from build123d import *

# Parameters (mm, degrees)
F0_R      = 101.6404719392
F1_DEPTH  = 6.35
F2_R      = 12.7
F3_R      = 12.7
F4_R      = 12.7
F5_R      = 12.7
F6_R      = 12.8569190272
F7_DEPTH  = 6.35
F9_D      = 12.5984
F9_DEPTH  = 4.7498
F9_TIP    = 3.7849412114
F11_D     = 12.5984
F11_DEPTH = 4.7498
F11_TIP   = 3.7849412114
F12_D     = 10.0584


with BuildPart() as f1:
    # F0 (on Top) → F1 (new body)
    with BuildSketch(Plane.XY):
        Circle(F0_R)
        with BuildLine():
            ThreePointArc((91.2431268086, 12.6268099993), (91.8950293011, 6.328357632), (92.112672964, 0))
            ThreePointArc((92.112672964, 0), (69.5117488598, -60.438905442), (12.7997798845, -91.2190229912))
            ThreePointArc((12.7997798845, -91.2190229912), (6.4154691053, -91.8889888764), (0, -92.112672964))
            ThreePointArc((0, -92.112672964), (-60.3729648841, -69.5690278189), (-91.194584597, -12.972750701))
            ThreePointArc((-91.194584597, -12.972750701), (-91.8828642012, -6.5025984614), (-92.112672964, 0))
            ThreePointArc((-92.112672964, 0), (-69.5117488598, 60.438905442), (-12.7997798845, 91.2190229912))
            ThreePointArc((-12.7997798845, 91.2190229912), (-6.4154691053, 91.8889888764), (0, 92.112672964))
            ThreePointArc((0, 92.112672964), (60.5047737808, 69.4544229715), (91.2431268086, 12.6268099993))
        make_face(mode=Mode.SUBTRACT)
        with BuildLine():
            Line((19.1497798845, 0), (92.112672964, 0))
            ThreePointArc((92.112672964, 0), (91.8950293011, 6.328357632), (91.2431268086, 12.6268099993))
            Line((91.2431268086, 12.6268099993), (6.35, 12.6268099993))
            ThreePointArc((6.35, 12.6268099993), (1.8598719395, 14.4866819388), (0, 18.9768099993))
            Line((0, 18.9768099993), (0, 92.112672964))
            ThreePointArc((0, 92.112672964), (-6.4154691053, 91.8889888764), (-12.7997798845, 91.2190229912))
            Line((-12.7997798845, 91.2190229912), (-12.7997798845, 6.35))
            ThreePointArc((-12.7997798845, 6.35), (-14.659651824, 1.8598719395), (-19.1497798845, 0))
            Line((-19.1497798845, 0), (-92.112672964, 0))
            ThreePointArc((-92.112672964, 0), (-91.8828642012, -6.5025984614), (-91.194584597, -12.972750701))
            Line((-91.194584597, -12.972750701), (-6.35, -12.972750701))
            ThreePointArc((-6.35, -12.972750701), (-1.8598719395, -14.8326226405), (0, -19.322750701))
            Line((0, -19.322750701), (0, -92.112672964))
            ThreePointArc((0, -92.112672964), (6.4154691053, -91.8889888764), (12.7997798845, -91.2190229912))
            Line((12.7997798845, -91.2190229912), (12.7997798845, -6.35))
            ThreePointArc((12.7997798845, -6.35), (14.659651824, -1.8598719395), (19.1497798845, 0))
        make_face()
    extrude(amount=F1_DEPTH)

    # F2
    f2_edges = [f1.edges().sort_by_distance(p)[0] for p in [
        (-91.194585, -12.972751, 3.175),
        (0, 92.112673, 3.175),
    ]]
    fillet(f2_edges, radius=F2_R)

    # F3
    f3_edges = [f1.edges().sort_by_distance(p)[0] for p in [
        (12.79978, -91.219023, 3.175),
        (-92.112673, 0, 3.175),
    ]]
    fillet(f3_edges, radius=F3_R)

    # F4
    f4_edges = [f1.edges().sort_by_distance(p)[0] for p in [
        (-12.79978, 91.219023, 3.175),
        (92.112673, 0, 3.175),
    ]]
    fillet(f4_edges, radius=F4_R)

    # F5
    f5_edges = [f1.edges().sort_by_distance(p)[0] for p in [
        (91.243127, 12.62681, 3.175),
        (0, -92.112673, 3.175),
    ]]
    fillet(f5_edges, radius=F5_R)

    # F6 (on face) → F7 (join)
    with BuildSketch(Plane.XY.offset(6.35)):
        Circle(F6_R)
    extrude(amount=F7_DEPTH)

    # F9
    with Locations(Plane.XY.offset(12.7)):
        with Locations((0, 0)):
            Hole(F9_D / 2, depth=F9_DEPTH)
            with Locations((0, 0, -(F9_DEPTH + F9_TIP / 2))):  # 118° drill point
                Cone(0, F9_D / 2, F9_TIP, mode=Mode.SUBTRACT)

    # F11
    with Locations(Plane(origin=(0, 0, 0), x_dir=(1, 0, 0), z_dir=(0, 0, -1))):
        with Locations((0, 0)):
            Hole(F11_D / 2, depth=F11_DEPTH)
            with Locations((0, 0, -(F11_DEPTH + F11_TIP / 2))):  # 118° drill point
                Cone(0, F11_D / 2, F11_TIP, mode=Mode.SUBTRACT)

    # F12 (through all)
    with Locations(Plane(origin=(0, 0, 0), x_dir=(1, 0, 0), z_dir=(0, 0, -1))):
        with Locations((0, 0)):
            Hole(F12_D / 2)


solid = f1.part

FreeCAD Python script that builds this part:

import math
import FreeCAD as App
import Part
import Sketcher
Q = App.Units.Quantity


def edges_at(feature, points):
    """Names of the edges that pass closest to the given points."""
    edges = feature.Shape.Edges
    near = lambda p: min(range(len(edges)), key=lambda i: edges[i].distToShape(Part.Vertex(*p))[0])
    return sorted({f"Edge{near(p) + 1}" for p in points})

doc = App.newDocument("Part")
params = doc.addObject("Spreadsheet::Sheet", "Params")
for row, (alias, value) in enumerate([
    ("sketch1_radius", "0.25 in"),
    ("pad1_length", "0.25 in"),
    ("fillet_radius", "0.5 in"),
    ("fillet2_radius", "0.5 in"),
    ("fillet3_radius", "0.5 in"),
    ("fillet4_radius", "0.5 in"),
    ("pad2_length", "0.25 in"),
    ("sketch3_diameter", "0.496 in"),
    ("hole_diameter", "0.496 in"),
    ("hole_depth", "0.187 in"),
    ("sketch4_diameter", "0.496 in"),
    ("hole2_diameter", "0.496 in"),
    ("hole2_depth", "0.187 in"),
    ("sketch5_diameter", "0.396 in"),
    ("hole3_diameter", "0.396 in"),
], start=1):
    params.set(f"A{row}", alias)
    params.set(f"B{row}", "=" + value)
    params.setAlias(f"B{row}", alias)

body = doc.addObject("PartDesign::Body", "Body")

# Sketch on XY plane
sketch1 = doc.addObject("Sketcher::SketchObject", "Sketch")
body.addObject(sketch1)
sketch1.AttachmentSupport = (doc.XY_Plane, [""])
sketch1.MapMode = "FlatFace"
sketch1.addGeometry(Part.Circle(App.Vector(0, 0, 0), App.Vector(0, 0, 1), 102), False)
sketch1.addGeometry(Part.ArcOfCircle(Part.Circle(App.Vector(0, 0, 0), App.Vector(0, 0, 1), 92), math.radians(8), math.radians(90)), False)
sketch1.addGeometry(Part.LineSegment(App.Vector(91, 13, 0), App.Vector(6, 13, 0)), False)
sketch1.addGeometry(Part.ArcOfCircle(Part.Circle(App.Vector(6, 19, 0), App.Vector(0, 0, 1), 6), math.radians(180), math.radians(270)), False)
sketch1.addGeometry(Part.LineSegment(App.Vector(0, 19, 0), App.Vector(0, 92, 0)), False)
sketch1.addGeometry(Part.ArcOfCircle(Part.Circle(App.Vector(0, 0, 0), App.Vector(0, 0, 1), 92), math.radians(98), math.radians(180)), False)
sketch1.addGeometry(Part.LineSegment(App.Vector(-13, 91, 0), App.Vector(-13, 6, 0)), False)
sketch1.addGeometry(Part.ArcOfCircle(Part.Circle(App.Vector(-19, 6, 0), App.Vector(0, 0, 1), 6), math.radians(-90), math.radians(0)), False)
sketch1.addGeometry(Part.LineSegment(App.Vector(-19, 0, 0), App.Vector(-92, 0, 0)), False)
sketch1.addGeometry(Part.ArcOfCircle(Part.Circle(App.Vector(0, 0, 0), App.Vector(0, 0, 1), 92), math.radians(-172), math.radians(-90)), False)
sketch1.addGeometry(Part.LineSegment(App.Vector(-91, -13, 0), App.Vector(-6, -13, 0)), False)
sketch1.addGeometry(Part.ArcOfCircle(Part.Circle(App.Vector(-6, -19, 0), App.Vector(0, 0, 1), 6), math.radians(0), math.radians(90)), False)
sketch1.addGeometry(Part.LineSegment(App.Vector(0, -19, 0), App.Vector(0, -92, 0)), False)
sketch1.addGeometry(Part.ArcOfCircle(Part.Circle(App.Vector(0, 0, 0), App.Vector(0, 0, 1), 92), math.radians(-82), math.radians(0)), False)
sketch1.addGeometry(Part.LineSegment(App.Vector(13, -91, 0), App.Vector(13, -6, 0)), False)
sketch1.addGeometry(Part.ArcOfCircle(Part.Circle(App.Vector(19, -6, 0), App.Vector(0, 0, 1), 6), math.radians(90), math.radians(180)), False)
sketch1.addGeometry(Part.LineSegment(App.Vector(19, 0, 0), App.Vector(92, 0, 0)), False)
sketch1.addConstraint(Sketcher.Constraint("Coincident", 1, 1, 2, 1))
sketch1.addConstraint(Sketcher.Constraint("Tangent", 2, 2, 3, 2))
sketch1.addConstraint(Sketcher.Constraint("Tangent", 3, 1, 4, 1))
sketch1.addConstraint(Sketcher.Constraint("Coincident", 4, 2, 1, 2))
sketch1.addConstraint(Sketcher.Constraint("Coincident", 5, 1, 6, 1))
sketch1.addConstraint(Sketcher.Constraint("Tangent", 6, 2, 7, 2))
sketch1.addConstraint(Sketcher.Constraint("Tangent", 7, 1, 8, 1))
sketch1.addConstraint(Sketcher.Constraint("Coincident", 8, 2, 5, 2))
sketch1.addConstraint(Sketcher.Constraint("Coincident", 9, 1, 10, 1))
sketch1.addConstraint(Sketcher.Constraint("Tangent", 10, 2, 11, 2))
sketch1.addConstraint(Sketcher.Constraint("Tangent", 11, 1, 12, 1))
sketch1.addConstraint(Sketcher.Constraint("Coincident", 12, 2, 9, 2))
sketch1.addConstraint(Sketcher.Constraint("Coincident", 13, 1, 14, 1))
sketch1.addConstraint(Sketcher.Constraint("Tangent", 14, 2, 15, 2))
sketch1.addConstraint(Sketcher.Constraint("Tangent", 15, 1, 16, 1))
sketch1.addConstraint(Sketcher.Constraint("Coincident", 16, 2, 13, 2))
sketch1.addConstraint(Sketcher.Constraint("Horizontal", 2))
sketch1.addConstraint(Sketcher.Constraint("Vertical", 4))
sketch1.addConstraint(Sketcher.Constraint("Vertical", 6))
sketch1.addConstraint(Sketcher.Constraint("Horizontal", 8))
sketch1.addConstraint(Sketcher.Constraint("Horizontal", 10))
sketch1.addConstraint(Sketcher.Constraint("Vertical", 12))
sketch1.addConstraint(Sketcher.Constraint("Vertical", 14))
sketch1.addConstraint(Sketcher.Constraint("Horizontal", 16))
sketch1.addConstraint(Sketcher.Constraint("Coincident", 0, 3, -1, 1))
sketch1.addConstraint(Sketcher.Constraint("Coincident", 1, 3, -1, 1))
sketch1.addConstraint(Sketcher.Constraint("Coincident", 5, 3, -1, 1))
sketch1.addConstraint(Sketcher.Constraint("Coincident", 9, 3, -1, 1))
sketch1.addConstraint(Sketcher.Constraint("Coincident", 13, 3, -1, 1))
sketch1.addConstraint(Sketcher.Constraint("Equal", 1, 5))
sketch1.addConstraint(Sketcher.Constraint("Equal", 3, 7))
sketch1.addConstraint(Sketcher.Constraint("Equal", 5, 9))
sketch1.addConstraint(Sketcher.Constraint("Equal", 7, 11))
sketch1.addConstraint(Sketcher.Constraint("Equal", 9, 13))
sketch1.addConstraint(Sketcher.Constraint("Equal", 11, 15))
sketch1.addConstraint(Sketcher.Constraint("Symmetric", 7, 3, 15, 3, -1, 1))
sketch1.addConstraint(Sketcher.Constraint("PointOnObject", 3, 1, -2))
sketch1.addConstraint(Sketcher.Constraint("PointOnObject", 7, 1, -1))
sketch1.addConstraint(Sketcher.Constraint("PointOnObject", 11, 1, -2))
sketch1.addConstraint(Sketcher.Constraint("Radius", 3, Q("0.25 in")))
sketch1.addConstraint(Sketcher.Constraint("DistanceY", 6, 2, 6, 1, Q("3.3413001 in")))
sketch1.addConstraint(Sketcher.Constraint("Diameter", 0, 203.280944))
sketch1.addConstraint(Sketcher.Constraint("Radius", 1, 92.112673))
sketch1.addConstraint(Sketcher.Constraint("DistanceX", 2, 2, 2, 1, 84.893127))
sketch1.addConstraint(Sketcher.Constraint("DistanceX", 10, 1, 10, 2, 84.844585))
sketch1.setExpression("Constraints[39]", "Params.sketch1_radius")
pad1 = doc.addObject("PartDesign::Pad", "Pad")
body.addObject(pad1)
pad1.Profile = sketch1
pad1.setExpression("Length", "Params.pad1_length")
doc.recompute()

fillet = doc.addObject("PartDesign::Fillet", "Fillet")
body.addObject(fillet)
fillet.Base = (pad1, edges_at(pad1, [(-91.195, -12.973, 3.175), (0, 92.113, 3.175)]))
fillet.setExpression("Radius", "Params.fillet_radius")
doc.recompute()

fillet2 = doc.addObject("PartDesign::Fillet", "Fillet001")
body.addObject(fillet2)
fillet2.Base = (fillet, edges_at(fillet, [(12.8, -91.219, 3.175), (-92.113, 0, 3.175)]))
fillet2.setExpression("Radius", "Params.fillet2_radius")
doc.recompute()

fillet3 = doc.addObject("PartDesign::Fillet", "Fillet002")
body.addObject(fillet3)
fillet3.Base = (fillet2, edges_at(fillet2, [(-12.8, 91.219, 3.175), (92.113, 0, 3.175)]))
fillet3.setExpression("Radius", "Params.fillet3_radius")
doc.recompute()

fillet4 = doc.addObject("PartDesign::Fillet", "Fillet003")
body.addObject(fillet4)
fillet4.Base = (fillet3, edges_at(fillet3, [(91.243, 12.627, 3.175), (0, -92.113, 3.175)]))
fillet4.setExpression("Radius", "Params.fillet4_radius")

# Sketch on XY plane
sketch2 = doc.addObject("Sketcher::SketchObject", "Sketch001")
body.addObject(sketch2)
sketch2.AttachmentSupport = (doc.XY_Plane, [""])
sketch2.MapMode = "FlatFace"
sketch2.AttachmentOffset = App.Placement(App.Vector(0, 0, 0.25 * 25.4), App.Rotation())
sketch2.addGeometry(Part.Circle(App.Vector(0, 0, 0), App.Vector(0, 0, 1), 13), False)
sketch2.addConstraint(Sketcher.Constraint("Coincident", 0, 3, -1, 1))
sketch2.addConstraint(Sketcher.Constraint("Diameter", 0, 25.713838))
pad2 = doc.addObject("PartDesign::Pad", "Pad001")
body.addObject(pad2)
pad2.Profile = sketch2
pad2.setExpression("Length", "Params.pad2_length")

# Sketch on XY plane
sketch3 = doc.addObject("Sketcher::SketchObject", "Sketch002")
body.addObject(sketch3)
sketch3.AttachmentSupport = (doc.XY_Plane, [""])
sketch3.MapMode = "FlatFace"
sketch3.AttachmentOffset = App.Placement(App.Vector(0, 0, 0.5 * 25.4), App.Rotation())
sketch3.addGeometry(Part.Circle(App.Vector(0, 0, 0), App.Vector(0, 0, 1), 6), False)
sketch3.addConstraint(Sketcher.Constraint("Coincident", 0, 3, -1, 1))
sketch3.addConstraint(Sketcher.Constraint("Diameter", 0, Q("0.496 in")))
sketch3.setExpression("Constraints[1]", "Params.sketch3_diameter")
doc.recompute()
hole = doc.addObject("PartDesign::Hole", "Hole")
body.addObject(hole)
hole.Profile = sketch3
hole.ThreadType = "None"
hole.setExpression("Diameter", "Params.hole_diameter")
hole.DepthType = "Dimension"
hole.setExpression("Depth", "Params.hole_depth")
hole.DrillPoint = "Angled"
hole.DrillPointAngle = 118

# Sketch on XY plane
sketch4 = doc.addObject("Sketcher::SketchObject", "Sketch003")
body.addObject(sketch4)
sketch4.AttachmentSupport = (doc.XY_Plane, [""])
sketch4.MapMode = "FlatFace"
sketch4.addGeometry(Part.Circle(App.Vector(0, 0, 0), App.Vector(0, 0, 1), 6), False)
sketch4.addConstraint(Sketcher.Constraint("Coincident", 0, 3, -1, 1))
sketch4.addConstraint(Sketcher.Constraint("Diameter", 0, Q("0.496 in")))
sketch4.setExpression("Constraints[1]", "Params.sketch4_diameter")
doc.recompute()
hole2 = doc.addObject("PartDesign::Hole", "Hole001")
body.addObject(hole2)
hole2.Profile = sketch4
hole2.ThreadType = "None"
hole2.setExpression("Diameter", "Params.hole2_diameter")
hole2.DepthType = "Dimension"
hole2.setExpression("Depth", "Params.hole2_depth")
hole2.DrillPoint = "Angled"
hole2.DrillPointAngle = 118
hole2.Reversed = True

# Sketch on XY plane
sketch5 = doc.addObject("Sketcher::SketchObject", "Sketch004")
body.addObject(sketch5)
sketch5.AttachmentSupport = (doc.XY_Plane, [""])
sketch5.MapMode = "FlatFace"
sketch5.addGeometry(Part.Circle(App.Vector(0, 0, 0), App.Vector(0, 0, 1), 5), False)
sketch5.addConstraint(Sketcher.Constraint("Coincident", 0, 3, -1, 1))
sketch5.addConstraint(Sketcher.Constraint("Diameter", 0, Q("0.396 in")))
sketch5.setExpression("Constraints[1]", "Params.sketch5_diameter")
doc.recompute()
hole3 = doc.addObject("PartDesign::Hole", "Hole002")
body.addObject(hole3)
hole3.Profile = sketch5
hole3.ThreadType = "None"
hole3.setExpression("Diameter", "Params.hole3_diameter")
hole3.DepthType = "ThroughAll"
hole3.Reversed = True

doc.recompute()
